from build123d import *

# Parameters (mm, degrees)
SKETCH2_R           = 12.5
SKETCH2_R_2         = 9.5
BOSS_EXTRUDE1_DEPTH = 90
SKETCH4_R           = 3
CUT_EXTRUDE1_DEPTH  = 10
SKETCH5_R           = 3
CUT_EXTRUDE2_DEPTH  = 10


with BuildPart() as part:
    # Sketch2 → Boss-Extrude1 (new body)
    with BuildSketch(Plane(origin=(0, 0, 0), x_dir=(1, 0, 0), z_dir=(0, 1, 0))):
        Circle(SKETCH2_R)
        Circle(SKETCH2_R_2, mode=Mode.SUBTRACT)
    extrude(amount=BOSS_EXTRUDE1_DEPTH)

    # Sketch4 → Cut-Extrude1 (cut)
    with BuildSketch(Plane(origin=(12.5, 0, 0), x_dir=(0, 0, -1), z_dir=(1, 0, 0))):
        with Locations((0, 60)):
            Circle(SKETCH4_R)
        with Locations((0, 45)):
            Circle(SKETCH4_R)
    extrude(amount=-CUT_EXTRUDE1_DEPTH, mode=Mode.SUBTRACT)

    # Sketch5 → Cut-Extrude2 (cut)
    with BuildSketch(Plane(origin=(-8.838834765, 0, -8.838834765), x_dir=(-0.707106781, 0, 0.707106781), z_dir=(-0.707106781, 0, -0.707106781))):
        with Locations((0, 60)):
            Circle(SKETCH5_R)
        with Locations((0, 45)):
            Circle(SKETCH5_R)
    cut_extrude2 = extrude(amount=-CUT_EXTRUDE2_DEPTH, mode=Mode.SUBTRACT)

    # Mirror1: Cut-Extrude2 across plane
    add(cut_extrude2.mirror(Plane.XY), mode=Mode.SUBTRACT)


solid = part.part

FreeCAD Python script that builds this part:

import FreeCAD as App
import Part
import Sketcher

doc = App.newDocument("Part")
body = doc.addObject("PartDesign::Body", "Body")

# Sketch on XZ plane
sketch1 = body.newObject("Sketcher::SketchObject", "Sketch")
sketch1.AttachmentSupport = (doc.getObject("XZ_Plane"), [""])
sketch1.MapMode = "FlatFace"
sketch1.addGeometry(Part.Circle(App.Vector(0, 0, 0), App.Vector(0, 0, 1), 12), False)
sketch1.addGeometry(Part.Circle(App.Vector(0, 0, 0), App.Vector(0, 0, 1), 10), False)
sketch1.addConstraint(Sketcher.Constraint("Coincident", 0, 3, -1, 1))
sketch1.addConstraint(Sketcher.Constraint("Coincident", 1, 3, -1, 1))
sketch1.addConstraint(Sketcher.Constraint("Diameter", 0, 25.0))
sketch1.addConstraint(Sketcher.Constraint("Diameter", 1, 19.0))
pad1 = body.newObject("PartDesign::Pad", "Pad")
pad1.Profile = sketch1
pad1.Length = 90
pad1.Reversed = True

# Sketch on YZ plane
sketch2 = body.newObject("Sketcher::SketchObject", "Sketch001")
sketch2.AttachmentSupport = (doc.getObject("YZ_Plane"), [""])
sketch2.MapMode = "FlatFace"
sketch2.AttachmentOffset = App.Placement(App.Vector(0, 0, 12.5), App.Rotation())
sketch2.addGeometry(Part.Circle(App.Vector(60, 0, 0), App.Vector(0, 0, 1), 3), False)
sketch2.addGeometry(Part.Circle(App.Vector(45, 0, 0), App.Vector(0, 0, 1), 3), False)
sketch2.addConstraint(Sketcher.Constraint("Equal", 0, 1))
sketch2.addConstraint(Sketcher.Constraint("PointOnObject", 0, 3, -1))
sketch2.addConstraint(Sketcher.Constraint("PointOnObject", 1, 3, -1))
sketch2.addConstraint(Sketcher.Constraint("Diameter", 0, 6.0))
sketch2.addConstraint(Sketcher.Constraint("DistanceX", -1, 1, 0, 3, 60.0))
sketch2.addConstraint(Sketcher.Constraint("DistanceX", -1, 1, 1, 3, 45.0))
pocket1 = body.newObject("PartDesign::Pocket", "Pocket")
pocket1.Profile = sketch2
pocket1.Length = 10

# Sketch on an angled plane
sketch3 = body.newObject("Sketcher::SketchObject", "Sketch002")
sketch3.Placement = App.Placement(App.Vector(-8.838835, 0, -8.838835), App.Rotation(App.Vector(-0.707106781, 0, 0.707106781), App.Vector(0, 0.999999999, 0), App.Vector(-0.707106781, 0, -0.707106781), "ZXY"))
sketch3.addGeometry(Part.Circle(App.Vector(0, 60, 0), App.Vector(0, 0, 1), 3), False)
sketch3.addGeometry(Part.Circle(App.Vector(0, 45, 0), App.Vector(0, 0, 1), 3), False)
sketch3.addConstraint(Sketcher.Constraint("Equal", 0, 1))
sketch3.addConstraint(Sketcher.Constraint("PointOnObject", 0, 3, -2))
sketch3.addConstraint(Sketcher.Constraint("PointOnObject", 1, 3, -2))
sketch3.addConstraint(Sketcher.Constraint("Diameter", 0, 6.0))
sketch3.addConstraint(Sketcher.Constraint("DistanceY", -1, 1, 0, 3, 60.0))
sketch3.addConstraint(Sketcher.Constraint("DistanceY", -1, 1, 1, 3, 45.0))
pocket2 = body.newObject("PartDesign::Pocket", "Pocket001")
pocket2.Profile = sketch3
pocket2.Length = 10
doc.recompute()

mirrored = body.newObject("PartDesign::Mirrored", "Mirrored")
mirrored.Originals = [pocket2]
mirrored.MirrorPlane = (doc.getObject("XY_Plane"), [""])
body.Tip = mirrored

doc.recompute()
